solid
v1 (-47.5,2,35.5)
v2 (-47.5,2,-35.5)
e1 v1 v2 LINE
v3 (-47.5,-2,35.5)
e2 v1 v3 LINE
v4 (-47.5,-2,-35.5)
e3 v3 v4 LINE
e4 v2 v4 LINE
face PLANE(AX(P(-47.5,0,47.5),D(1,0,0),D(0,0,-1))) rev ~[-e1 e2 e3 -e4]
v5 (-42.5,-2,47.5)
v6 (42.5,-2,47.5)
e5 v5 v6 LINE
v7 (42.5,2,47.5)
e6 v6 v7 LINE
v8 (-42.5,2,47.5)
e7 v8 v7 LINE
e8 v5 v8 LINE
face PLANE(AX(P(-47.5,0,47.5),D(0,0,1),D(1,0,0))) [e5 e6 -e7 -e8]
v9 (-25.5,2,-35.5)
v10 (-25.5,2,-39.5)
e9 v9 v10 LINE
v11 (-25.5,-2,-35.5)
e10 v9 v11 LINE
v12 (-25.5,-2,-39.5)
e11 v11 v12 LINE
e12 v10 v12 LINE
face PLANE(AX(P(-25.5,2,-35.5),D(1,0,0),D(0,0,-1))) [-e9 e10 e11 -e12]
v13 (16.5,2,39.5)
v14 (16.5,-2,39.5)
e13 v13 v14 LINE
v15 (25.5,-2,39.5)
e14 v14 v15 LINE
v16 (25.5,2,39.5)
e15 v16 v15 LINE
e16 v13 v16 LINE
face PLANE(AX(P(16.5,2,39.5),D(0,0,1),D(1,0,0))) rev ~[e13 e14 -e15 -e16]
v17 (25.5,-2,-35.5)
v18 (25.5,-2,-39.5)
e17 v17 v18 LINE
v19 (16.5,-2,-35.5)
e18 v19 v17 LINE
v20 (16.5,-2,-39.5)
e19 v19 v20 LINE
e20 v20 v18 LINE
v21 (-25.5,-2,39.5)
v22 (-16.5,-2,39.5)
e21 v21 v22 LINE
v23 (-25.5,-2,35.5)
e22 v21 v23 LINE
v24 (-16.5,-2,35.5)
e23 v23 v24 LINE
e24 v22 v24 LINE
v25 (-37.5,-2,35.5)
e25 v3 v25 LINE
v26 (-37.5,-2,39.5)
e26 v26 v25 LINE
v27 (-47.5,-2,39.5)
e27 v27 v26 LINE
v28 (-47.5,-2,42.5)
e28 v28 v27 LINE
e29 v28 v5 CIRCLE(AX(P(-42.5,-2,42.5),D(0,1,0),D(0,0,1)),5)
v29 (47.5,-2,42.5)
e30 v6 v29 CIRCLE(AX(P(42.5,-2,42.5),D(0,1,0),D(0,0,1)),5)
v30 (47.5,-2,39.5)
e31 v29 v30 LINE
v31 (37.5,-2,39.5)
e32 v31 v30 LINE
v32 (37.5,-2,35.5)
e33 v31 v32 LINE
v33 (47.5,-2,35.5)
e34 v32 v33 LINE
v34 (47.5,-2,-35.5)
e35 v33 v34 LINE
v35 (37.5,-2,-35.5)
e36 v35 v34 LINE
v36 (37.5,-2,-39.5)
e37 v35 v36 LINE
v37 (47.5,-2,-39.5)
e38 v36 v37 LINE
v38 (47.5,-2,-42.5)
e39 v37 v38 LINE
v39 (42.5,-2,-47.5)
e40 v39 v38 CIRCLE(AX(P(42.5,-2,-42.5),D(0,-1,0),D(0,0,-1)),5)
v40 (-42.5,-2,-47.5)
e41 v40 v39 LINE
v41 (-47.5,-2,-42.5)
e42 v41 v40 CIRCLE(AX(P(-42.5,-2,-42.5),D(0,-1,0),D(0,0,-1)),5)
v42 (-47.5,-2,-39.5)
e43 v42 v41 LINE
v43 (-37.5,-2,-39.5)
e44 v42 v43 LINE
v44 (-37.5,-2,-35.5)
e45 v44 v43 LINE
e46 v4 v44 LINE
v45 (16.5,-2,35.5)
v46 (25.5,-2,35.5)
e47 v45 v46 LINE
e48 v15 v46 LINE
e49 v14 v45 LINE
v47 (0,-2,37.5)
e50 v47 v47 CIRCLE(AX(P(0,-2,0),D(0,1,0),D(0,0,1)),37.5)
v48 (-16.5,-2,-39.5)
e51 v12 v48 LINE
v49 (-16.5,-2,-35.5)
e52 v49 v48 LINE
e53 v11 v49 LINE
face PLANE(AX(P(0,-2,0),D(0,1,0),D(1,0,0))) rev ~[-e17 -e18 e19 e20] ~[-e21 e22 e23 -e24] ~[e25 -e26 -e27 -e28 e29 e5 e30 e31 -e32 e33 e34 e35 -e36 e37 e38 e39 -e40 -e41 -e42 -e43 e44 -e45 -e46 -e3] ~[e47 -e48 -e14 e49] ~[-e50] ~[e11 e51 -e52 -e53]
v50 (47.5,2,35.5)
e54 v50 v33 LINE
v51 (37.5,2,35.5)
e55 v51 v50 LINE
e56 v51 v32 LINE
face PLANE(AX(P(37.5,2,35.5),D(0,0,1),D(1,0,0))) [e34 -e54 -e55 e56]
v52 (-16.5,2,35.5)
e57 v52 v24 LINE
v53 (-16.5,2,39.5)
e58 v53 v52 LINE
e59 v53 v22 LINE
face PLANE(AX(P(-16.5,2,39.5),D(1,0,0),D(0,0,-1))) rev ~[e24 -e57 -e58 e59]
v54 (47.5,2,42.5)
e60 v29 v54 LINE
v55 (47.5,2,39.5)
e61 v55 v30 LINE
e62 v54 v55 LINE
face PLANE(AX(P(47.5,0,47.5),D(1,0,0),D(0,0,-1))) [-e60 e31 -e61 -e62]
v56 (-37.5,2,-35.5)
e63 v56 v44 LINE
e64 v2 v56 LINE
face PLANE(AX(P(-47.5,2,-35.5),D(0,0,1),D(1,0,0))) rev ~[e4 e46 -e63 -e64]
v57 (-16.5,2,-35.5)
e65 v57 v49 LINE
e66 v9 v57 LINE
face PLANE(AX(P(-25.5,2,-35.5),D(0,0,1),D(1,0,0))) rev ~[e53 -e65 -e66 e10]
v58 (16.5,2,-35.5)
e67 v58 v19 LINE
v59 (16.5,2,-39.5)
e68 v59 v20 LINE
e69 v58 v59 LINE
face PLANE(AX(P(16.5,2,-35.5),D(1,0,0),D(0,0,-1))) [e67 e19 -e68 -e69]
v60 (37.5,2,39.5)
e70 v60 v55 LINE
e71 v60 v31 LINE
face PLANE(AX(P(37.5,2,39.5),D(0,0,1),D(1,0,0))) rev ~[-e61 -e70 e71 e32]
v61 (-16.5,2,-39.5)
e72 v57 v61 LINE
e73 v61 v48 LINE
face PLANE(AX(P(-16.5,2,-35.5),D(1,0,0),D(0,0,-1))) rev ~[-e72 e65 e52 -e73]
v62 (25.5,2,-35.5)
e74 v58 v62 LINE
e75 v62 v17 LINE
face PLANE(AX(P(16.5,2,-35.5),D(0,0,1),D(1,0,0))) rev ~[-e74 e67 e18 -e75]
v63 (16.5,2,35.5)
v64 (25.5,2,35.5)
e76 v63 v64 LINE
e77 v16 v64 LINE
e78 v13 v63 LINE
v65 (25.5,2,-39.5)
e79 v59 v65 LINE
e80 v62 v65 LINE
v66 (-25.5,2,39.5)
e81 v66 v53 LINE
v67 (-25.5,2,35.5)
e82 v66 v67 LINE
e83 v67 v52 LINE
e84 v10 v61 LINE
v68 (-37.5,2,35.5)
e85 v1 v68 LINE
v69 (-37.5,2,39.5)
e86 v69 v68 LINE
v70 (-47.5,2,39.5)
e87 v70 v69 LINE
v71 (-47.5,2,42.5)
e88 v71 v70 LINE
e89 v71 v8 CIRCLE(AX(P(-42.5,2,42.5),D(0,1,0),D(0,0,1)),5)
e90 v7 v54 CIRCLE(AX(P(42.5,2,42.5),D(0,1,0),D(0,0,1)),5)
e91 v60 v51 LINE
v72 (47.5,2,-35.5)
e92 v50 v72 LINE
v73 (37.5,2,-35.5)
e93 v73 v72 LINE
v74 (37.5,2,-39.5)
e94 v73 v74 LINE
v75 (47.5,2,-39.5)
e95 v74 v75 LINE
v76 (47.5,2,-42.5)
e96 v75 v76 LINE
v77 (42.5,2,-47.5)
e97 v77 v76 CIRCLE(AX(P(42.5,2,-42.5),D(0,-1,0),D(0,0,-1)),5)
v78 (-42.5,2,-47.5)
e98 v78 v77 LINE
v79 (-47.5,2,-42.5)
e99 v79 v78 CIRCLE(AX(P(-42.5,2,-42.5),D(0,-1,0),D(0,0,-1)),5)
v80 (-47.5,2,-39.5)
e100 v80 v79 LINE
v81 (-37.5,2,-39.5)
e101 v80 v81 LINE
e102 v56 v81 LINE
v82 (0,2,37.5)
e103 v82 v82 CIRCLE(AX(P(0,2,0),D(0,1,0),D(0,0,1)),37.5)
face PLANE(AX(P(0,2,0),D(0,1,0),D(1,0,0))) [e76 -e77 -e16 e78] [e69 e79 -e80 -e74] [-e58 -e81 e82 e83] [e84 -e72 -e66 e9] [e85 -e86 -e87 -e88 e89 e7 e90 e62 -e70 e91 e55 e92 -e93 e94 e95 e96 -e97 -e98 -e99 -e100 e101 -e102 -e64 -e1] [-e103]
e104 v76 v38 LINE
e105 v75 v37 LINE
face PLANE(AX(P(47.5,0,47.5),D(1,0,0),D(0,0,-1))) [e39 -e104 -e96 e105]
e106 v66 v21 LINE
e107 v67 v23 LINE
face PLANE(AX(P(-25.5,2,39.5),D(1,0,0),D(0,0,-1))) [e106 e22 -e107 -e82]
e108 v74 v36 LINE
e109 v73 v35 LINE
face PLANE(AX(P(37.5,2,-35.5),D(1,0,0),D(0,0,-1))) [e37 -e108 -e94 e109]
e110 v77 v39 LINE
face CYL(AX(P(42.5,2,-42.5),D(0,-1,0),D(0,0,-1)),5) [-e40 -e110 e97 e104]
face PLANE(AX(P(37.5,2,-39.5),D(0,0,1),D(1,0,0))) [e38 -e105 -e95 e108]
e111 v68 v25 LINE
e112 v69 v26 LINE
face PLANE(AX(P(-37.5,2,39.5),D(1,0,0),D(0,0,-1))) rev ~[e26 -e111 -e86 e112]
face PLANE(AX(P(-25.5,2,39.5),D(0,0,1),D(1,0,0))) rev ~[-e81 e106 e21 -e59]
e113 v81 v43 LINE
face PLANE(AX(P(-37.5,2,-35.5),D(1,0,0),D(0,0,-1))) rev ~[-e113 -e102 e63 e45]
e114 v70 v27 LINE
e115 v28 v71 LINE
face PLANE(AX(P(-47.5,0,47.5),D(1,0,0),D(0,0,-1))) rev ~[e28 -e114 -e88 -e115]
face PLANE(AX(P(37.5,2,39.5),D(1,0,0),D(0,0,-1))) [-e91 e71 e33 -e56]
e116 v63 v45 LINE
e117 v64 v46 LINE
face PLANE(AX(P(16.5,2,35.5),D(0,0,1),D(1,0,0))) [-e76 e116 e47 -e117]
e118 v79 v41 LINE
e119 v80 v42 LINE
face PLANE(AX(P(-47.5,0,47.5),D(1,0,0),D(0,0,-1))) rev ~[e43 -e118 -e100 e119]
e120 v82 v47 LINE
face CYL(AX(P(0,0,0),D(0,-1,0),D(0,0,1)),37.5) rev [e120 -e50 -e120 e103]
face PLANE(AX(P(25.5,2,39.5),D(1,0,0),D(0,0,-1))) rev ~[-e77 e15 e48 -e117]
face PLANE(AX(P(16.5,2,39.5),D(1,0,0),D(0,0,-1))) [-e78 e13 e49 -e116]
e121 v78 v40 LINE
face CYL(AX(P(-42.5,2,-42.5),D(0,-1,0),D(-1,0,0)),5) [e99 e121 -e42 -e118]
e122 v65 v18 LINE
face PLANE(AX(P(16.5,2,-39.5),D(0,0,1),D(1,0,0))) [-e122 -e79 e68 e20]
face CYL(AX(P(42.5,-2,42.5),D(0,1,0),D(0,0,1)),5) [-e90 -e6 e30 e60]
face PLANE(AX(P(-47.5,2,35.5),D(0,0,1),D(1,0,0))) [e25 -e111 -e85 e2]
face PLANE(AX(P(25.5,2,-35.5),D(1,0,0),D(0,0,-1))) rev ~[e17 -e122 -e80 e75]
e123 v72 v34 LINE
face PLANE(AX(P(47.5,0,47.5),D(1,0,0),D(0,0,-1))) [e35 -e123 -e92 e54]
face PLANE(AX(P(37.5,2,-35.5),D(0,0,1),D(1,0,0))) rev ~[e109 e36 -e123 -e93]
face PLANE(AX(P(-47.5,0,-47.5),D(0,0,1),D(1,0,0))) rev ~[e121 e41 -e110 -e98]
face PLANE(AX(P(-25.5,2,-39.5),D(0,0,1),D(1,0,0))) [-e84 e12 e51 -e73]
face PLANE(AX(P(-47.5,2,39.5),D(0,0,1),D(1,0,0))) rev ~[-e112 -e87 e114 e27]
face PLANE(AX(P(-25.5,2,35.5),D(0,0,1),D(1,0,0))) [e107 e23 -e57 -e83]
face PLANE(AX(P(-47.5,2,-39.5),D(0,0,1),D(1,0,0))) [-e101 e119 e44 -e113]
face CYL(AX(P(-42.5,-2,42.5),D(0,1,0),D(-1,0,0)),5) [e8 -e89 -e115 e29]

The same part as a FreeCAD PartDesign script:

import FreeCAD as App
import Part
import Sketcher
from FreeCAD import Vector
Q = App.Units.Quantity


def edges_at(feature, points):
    """Names of the edges that pass closest to the given points."""
    edges = feature.Shape.Edges
    near = lambda p: min(range(len(edges)), key=lambda i: edges[i].distToShape(Part.Vertex(*p))[0])
    return sorted({f"Edge{near(p) + 1}" for p in points})


def add_polygon(sketch, points):
    """Adds a closed chain of lines whose ends are joined by coincident constraints."""
    first, n = sketch.GeometryCount, len(points)
    for a, b in zip(points, points[1:] + points[:1]):
        sketch.addGeometry(Part.LineSegment(App.Vector(*a, 0), App.Vector(*b, 0)), False)
    for i in range(n):
        sketch.addConstraint(Sketcher.Constraint("Coincident", first + i, 2, first + (i + 1) % n, 1))

doc = App.newDocument("Part")
body = doc.addObject("PartDesign::Body", "Body")

# Sketch on XZ plane
sketch1 = body.newObject("Sketcher::SketchObject", "Sketch")
sketch1.AttachmentSupport = (doc.getObject("XZ_Plane"), [""])
sketch1.MapMode = "FlatFace"
add_polygon(sketch1, [(-48, -48), (-48, 48), (48, 48), (48, -48)])  # lines 0-3
sketch1.addGeometry(Part.Circle(Vector(0, 0, 0), Vector(0, 0, 1), 38), False)  # 4
sketch1.addConstraint([
    Sketcher.Constraint("Vertical", 0),
    Sketcher.Constraint("Horizontal", 1),
    Sketcher.Constraint("Vertical", 2),
    Sketcher.Constraint("Horizontal", 3),
    Sketcher.Constraint("Coincident", 4, 3, -1, 1),
    Sketcher.Constraint("Symmetric", 0, 2, 2, 2, -1, 1),
    Sketcher.Constraint("Equal", 3, 0),
    Sketcher.Constraint("Diameter", 4, Q("75 mm")),
    Sketcher.Constraint("DistanceX", 1, 1, 1, 2, Q("95 mm")),
])
pad1 = body.newObject("PartDesign::Pad", "Pad")
pad1.Profile = sketch1
pad1.Length = 4
pad1.Midplane = True

# Sketch on XZ plane
sketch2 = body.newObject("Sketcher::SketchObject", "Sketch001")
sketch2.AttachmentSupport = (doc.getObject("XZ_Plane"), [""])
sketch2.MapMode = "FlatFace"
sketch2.AttachmentOffset = App.Placement(Vector(0, 0, -2), App.Rotation())
add_polygon(sketch2, [(-47.5, -39.5), (-47.5, -35.5), (-37.5, -35.5), (-37.5, -39.5)])  # lines 0-3
add_polygon(sketch2, [(-25.5, -39.5), (-25.5, -35.5), (-16.5, -35.5), (-16.5, -39.5)])  # lines 4-7
add_polygon(sketch2, [(16.5, -39.5), (16.5, -35.5), (25.5, -35.5), (25.5, -39.5)])  # lines 8-11
add_polygon(sketch2, [(37.5, -39.5), (37.5, -35.5), (47.5, -35.5), (47.5, -39.5)])  # lines 12-15
add_polygon(sketch2, [(37.5, 35.5), (37.5, 39.5), (47.5, 39.5), (47.5, 35.5)])  # lines 16-19
add_polygon(sketch2, [(16.5, 35.5), (16.5, 39.5), (25.5, 39.5), (25.5, 35.5)])  # lines 20-23
add_polygon(sketch2, [(-25.5, 35.5), (-25.5, 39.5), (-16.5, 39.5), (-16.5, 35.5)])  # lines 24-27
add_polygon(sketch2, [(-47.5, 35.5), (-47.5, 39.5), (-37.5, 39.5), (-37.5, 35.5)])  # lines 28-31
sketch2.addConstraint([
    Sketcher.Constraint("Vertical", 0),
    Sketcher.Constraint("Horizontal", 1),
    Sketcher.Constraint("Vertical", 2),
    Sketcher.Constraint("Horizontal", 3),
    Sketcher.Constraint("Vertical", 4),
    Sketcher.Constraint("Horizontal", 5),
    Sketcher.Constraint("Vertical", 6),
    Sketcher.Constraint("Horizontal", 7),
    Sketcher.Constraint("Vertical", 8),
    Sketcher.Constraint("Horizontal", 9),
    Sketcher.Constraint("Vertical", 10),
    Sketcher.Constraint("Horizontal", 11),
    Sketcher.Constraint("Vertical", 12),
    Sketcher.Constraint("Horizontal", 13),
    Sketcher.Constraint("Vertical", 14),
    Sketcher.Constraint("Horizontal", 15),
    Sketcher.Constraint("Vertical", 16),
    Sketcher.Constraint("Horizontal", 17),
    Sketcher.Constraint("Vertical", 18),
    Sketcher.Constraint("Horizontal", 19),
    Sketcher.Constraint("Vertical", 20),
    Sketcher.Constraint("Horizontal", 21),
    Sketcher.Constraint("Vertical", 22),
    Sketcher.Constraint("Horizontal", 23),
    Sketcher.Constraint("Vertical", 24),
    Sketcher.Constraint("Horizontal", 25),
    Sketcher.Constraint("Vertical", 26),
    Sketcher.Constraint("Horizontal", 27),
    Sketcher.Constraint("Vertical", 28),
    Sketcher.Constraint("Horizontal", 29),
    Sketcher.Constraint("Vertical", 30),
    Sketcher.Constraint("Horizontal", 31),
    Sketcher.Constraint("Symmetric", 2, 2, 16, 2, -1, 1),
    Sketcher.Constraint("Symmetric", 0, 2, 18, 2, -1, 1),
    Sketcher.Constraint("Symmetric", 6, 2, 20, 2, -1, 1),
    Sketcher.Constraint("Symmetric", 4, 2, 22, 2, -1, 1),
    Sketcher.Constraint("Symmetric", 10, 2, 24, 2, -1, 1),
    Sketcher.Constraint("Symmetric", 8, 2, 26, 2, -1, 1),
    Sketcher.Constraint("Symmetric", 14, 2, 28, 2, -1, 1),
    Sketcher.Constraint("Symmetric", 12, 2, 30, 2, -1, 1),
    Sketcher.Constraint("Symmetric", 5, 2, 8, 2, -2),
    Sketcher.Constraint("Symmetric", 7, 2, 10, 2, -2),
    Sketcher.Constraint("Symmetric", 1, 2, 12, 2, -2),
    Sketcher.Constraint("Symmetric", 3, 2, 14, 2, -2),
    Sketcher.Constraint("Horizontal", 1, 2, 4, 2),
    Sketcher.Constraint("Horizontal", 3, 2, 6, 2),
    Sketcher.Constraint("DistanceX", 1, 1, 1, 2, Q("10 mm")),
    Sketcher.Constraint("DistanceX", 5, 1, 5, 2, Q("9 mm")),
    Sketcher.Constraint("DistanceY", 0, 1, 0, 2, Q("4 mm")),
    Sketcher.Constraint("DistanceX", 1, 2, 4, 2, Q("12 mm")),
    Sketcher.Constraint("DistanceX", 5, 2, 8, 2, Q("33 mm")),
    Sketcher.Constraint("DistanceY", 12, 2, 16, 2, Q("75 mm")),
])
pocket1 = body.newObject("PartDesign::Pocket", "Pocket")
pocket1.Profile = sketch2
pocket1.Type = "ThroughAll"
pocket1.Reversed = True
doc.recompute()

fillet = body.newObject("PartDesign::Fillet", "Fillet")
fillet.Base = (pocket1, edges_at(pocket1, [
    (47.5, 0, 47.5),
    (-47.5, 0, 47.5),
    (-47.5, 0, -47.5),
    (47.5, 0, -47.5),
]))
fillet.Radius = 5

doc.recompute()
